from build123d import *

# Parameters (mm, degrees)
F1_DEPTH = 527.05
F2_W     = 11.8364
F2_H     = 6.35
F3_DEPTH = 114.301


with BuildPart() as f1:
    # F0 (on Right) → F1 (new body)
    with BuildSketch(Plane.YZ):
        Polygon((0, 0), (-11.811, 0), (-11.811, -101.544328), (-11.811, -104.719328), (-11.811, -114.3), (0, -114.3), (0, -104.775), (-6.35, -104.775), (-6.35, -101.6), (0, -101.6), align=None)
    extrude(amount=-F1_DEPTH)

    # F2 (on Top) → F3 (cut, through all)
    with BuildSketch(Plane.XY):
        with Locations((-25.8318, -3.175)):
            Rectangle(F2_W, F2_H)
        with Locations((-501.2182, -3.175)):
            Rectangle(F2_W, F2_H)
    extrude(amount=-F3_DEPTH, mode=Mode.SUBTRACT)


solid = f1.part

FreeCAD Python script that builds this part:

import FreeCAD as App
import Part
import Sketcher
Q = App.Units.Quantity


def add_polygon(sketch, points):
    """Adds a closed chain of lines whose ends are joined by coincident constraints."""
    first, n = sketch.GeometryCount, len(points)
    for a, b in zip(points, points[1:] + points[:1]):
        sketch.addGeometry(Part.LineSegment(App.Vector(*a, 0), App.Vector(*b, 0)), False)
    for i in range(n):
        sketch.addConstraint(Sketcher.Constraint("Coincident", first + i, 2, first + (i + 1) % n, 1))

doc = App.newDocument("Part")
params = doc.addObject("Spreadsheet::Sheet", "Params")
for row, (alias, value) in enumerate([
    ("sketch1_height", "4 in"),
    ("sketch1_height2", "4.5 in"),
    ("sketch1_width", "0.25 in"),
    ("sketch1_width2", "0.465 in"),
    ("sketch1_height3", "0.375 in"),
    ("pad1_length", "20.75 in"),
    ("sketch2_height", "0.25 in"),
    ("sketch2_width", "0.466 in"),
], start=1):
    params.set(f"A{row}", alias)
    params.set(f"B{row}", "=" + value)
    params.setAlias(f"B{row}", alias)

body = doc.addObject("PartDesign::Body", "Body")

# Sketch on YZ plane
sketch1 = body.newObject("Sketcher::SketchObject", "Sketch")
sketch1.AttachmentSupport = (doc.getObject("YZ_Plane"), [""])
sketch1.MapMode = "FlatFace"
add_polygon(sketch1, [(0, 0), (-11.8, 0), (-11.8, -114.3), (0, -114.3), (0, -104.8), (-6.3, -104.8), (-6.3, -101.6), (0, -101.6)])  # lines 0-7
sketch1.addConstraint(Sketcher.Constraint("Horizontal", 0))
sketch1.addConstraint(Sketcher.Constraint("Vertical", 1))
sketch1.addConstraint(Sketcher.Constraint("Horizontal", 2))
sketch1.addConstraint(Sketcher.Constraint("Vertical", 3))
sketch1.addConstraint(Sketcher.Constraint("Horizontal", 4))
sketch1.addConstraint(Sketcher.Constraint("Vertical", 5))
sketch1.addConstraint(Sketcher.Constraint("Horizontal", 6))
sketch1.addConstraint(Sketcher.Constraint("Vertical", 7))
sketch1.addConstraint(Sketcher.Constraint("Coincident", 7, 2, -1, 1))
sketch1.addConstraint(Sketcher.Constraint("PointOnObject", 2, 2, -2))
sketch1.addConstraint(Sketcher.Constraint("DistanceY", 7, 1, 7, 2, Q("4 in")))
sketch1.addConstraint(Sketcher.Constraint("DistanceY", 1, 2, 1, 1, Q("4.5 in")))
sketch1.addConstraint(Sketcher.Constraint("DistanceX", 4, 2, 4, 1, Q("0.25 in")))
sketch1.addConstraint(Sketcher.Constraint("DistanceX", 0, 2, 0, 1, Q("0.465 in")))
sketch1.addConstraint(Sketcher.Constraint("DistanceY", 3, 1, 3, 2, Q("0.375 in")))
sketch1.setExpression("Constraints[18]", "Params.sketch1_height")
sketch1.setExpression("Constraints[19]", "Params.sketch1_height2")
sketch1.setExpression("Constraints[20]", "Params.sketch1_width")
sketch1.setExpression("Constraints[21]", "Params.sketch1_width2")
sketch1.setExpression("Constraints[22]", "Params.sketch1_height3")
pad1 = body.newObject("PartDesign::Pad", "Pad")
pad1.Profile = sketch1
pad1.setExpression("Length", "Params.pad1_length")
pad1.Reversed = True

# Sketch on XY plane
sketch2 = body.newObject("Sketcher::SketchObject", "Sketch001")
sketch2.AttachmentSupport = (doc.getObject("XY_Plane"), [""])
sketch2.MapMode = "FlatFace"
add_polygon(sketch2, [(-32, 0), (-32, -6), (-20, -6), (-20, 0)])  # lines 0-3
add_polygon(sketch2, [(-507, 0), (-507, -6), (-495, -6), (-495, 0)])  # lines 4-7
sketch2.addConstraint(Sketcher.Constraint("Vertical", 0))
sketch2.addConstraint(Sketcher.Constraint("Horizontal", 1))
sketch2.addConstraint(Sketcher.Constraint("Vertical", 2))
sketch2.addConstraint(Sketcher.Constraint("Horizontal", 3))
sketch2.addConstraint(Sketcher.Constraint("Vertical", 4))
sketch2.addConstraint(Sketcher.Constraint("Horizontal", 5))
sketch2.addConstraint(Sketcher.Constraint("Vertical", 6))
sketch2.addConstraint(Sketcher.Constraint("Horizontal", 7))
sketch2.addConstraint(Sketcher.Constraint("PointOnObject", 2, 2, -1))
sketch2.addConstraint(Sketcher.Constraint("PointOnObject", 6, 2, -1))
sketch2.addConstraint(Sketcher.Constraint("Horizontal", 1, 2, 4, 2))
sketch2.addConstraint(Sketcher.Constraint("Equal", 3, 5))
sketch2.addConstraint(Sketcher.Constraint("DistanceY", 0, 2, 0, 1, Q("0.25 in")))
sketch2.addConstraint(Sketcher.Constraint("DistanceX", 5, 2, -1, 1, Q("19.5 in")))
sketch2.addConstraint(Sketcher.Constraint("DistanceX", 1, 1, 1, 2, Q("0.466 in")))
sketch2.addConstraint(Sketcher.Constraint("DistanceX", 0, 2, -1, 1, Q("1.25 in")))
sketch2.setExpression("Constraints[20]", "Params.sketch2_height")
sketch2.setExpression("Constraints[22]", "Params.sketch2_width")
pocket1 = body.newObject("PartDesign::Pocket", "Pocket")
pocket1.Profile = sketch2
pocket1.Type = "ThroughAll"

doc.recompute()
